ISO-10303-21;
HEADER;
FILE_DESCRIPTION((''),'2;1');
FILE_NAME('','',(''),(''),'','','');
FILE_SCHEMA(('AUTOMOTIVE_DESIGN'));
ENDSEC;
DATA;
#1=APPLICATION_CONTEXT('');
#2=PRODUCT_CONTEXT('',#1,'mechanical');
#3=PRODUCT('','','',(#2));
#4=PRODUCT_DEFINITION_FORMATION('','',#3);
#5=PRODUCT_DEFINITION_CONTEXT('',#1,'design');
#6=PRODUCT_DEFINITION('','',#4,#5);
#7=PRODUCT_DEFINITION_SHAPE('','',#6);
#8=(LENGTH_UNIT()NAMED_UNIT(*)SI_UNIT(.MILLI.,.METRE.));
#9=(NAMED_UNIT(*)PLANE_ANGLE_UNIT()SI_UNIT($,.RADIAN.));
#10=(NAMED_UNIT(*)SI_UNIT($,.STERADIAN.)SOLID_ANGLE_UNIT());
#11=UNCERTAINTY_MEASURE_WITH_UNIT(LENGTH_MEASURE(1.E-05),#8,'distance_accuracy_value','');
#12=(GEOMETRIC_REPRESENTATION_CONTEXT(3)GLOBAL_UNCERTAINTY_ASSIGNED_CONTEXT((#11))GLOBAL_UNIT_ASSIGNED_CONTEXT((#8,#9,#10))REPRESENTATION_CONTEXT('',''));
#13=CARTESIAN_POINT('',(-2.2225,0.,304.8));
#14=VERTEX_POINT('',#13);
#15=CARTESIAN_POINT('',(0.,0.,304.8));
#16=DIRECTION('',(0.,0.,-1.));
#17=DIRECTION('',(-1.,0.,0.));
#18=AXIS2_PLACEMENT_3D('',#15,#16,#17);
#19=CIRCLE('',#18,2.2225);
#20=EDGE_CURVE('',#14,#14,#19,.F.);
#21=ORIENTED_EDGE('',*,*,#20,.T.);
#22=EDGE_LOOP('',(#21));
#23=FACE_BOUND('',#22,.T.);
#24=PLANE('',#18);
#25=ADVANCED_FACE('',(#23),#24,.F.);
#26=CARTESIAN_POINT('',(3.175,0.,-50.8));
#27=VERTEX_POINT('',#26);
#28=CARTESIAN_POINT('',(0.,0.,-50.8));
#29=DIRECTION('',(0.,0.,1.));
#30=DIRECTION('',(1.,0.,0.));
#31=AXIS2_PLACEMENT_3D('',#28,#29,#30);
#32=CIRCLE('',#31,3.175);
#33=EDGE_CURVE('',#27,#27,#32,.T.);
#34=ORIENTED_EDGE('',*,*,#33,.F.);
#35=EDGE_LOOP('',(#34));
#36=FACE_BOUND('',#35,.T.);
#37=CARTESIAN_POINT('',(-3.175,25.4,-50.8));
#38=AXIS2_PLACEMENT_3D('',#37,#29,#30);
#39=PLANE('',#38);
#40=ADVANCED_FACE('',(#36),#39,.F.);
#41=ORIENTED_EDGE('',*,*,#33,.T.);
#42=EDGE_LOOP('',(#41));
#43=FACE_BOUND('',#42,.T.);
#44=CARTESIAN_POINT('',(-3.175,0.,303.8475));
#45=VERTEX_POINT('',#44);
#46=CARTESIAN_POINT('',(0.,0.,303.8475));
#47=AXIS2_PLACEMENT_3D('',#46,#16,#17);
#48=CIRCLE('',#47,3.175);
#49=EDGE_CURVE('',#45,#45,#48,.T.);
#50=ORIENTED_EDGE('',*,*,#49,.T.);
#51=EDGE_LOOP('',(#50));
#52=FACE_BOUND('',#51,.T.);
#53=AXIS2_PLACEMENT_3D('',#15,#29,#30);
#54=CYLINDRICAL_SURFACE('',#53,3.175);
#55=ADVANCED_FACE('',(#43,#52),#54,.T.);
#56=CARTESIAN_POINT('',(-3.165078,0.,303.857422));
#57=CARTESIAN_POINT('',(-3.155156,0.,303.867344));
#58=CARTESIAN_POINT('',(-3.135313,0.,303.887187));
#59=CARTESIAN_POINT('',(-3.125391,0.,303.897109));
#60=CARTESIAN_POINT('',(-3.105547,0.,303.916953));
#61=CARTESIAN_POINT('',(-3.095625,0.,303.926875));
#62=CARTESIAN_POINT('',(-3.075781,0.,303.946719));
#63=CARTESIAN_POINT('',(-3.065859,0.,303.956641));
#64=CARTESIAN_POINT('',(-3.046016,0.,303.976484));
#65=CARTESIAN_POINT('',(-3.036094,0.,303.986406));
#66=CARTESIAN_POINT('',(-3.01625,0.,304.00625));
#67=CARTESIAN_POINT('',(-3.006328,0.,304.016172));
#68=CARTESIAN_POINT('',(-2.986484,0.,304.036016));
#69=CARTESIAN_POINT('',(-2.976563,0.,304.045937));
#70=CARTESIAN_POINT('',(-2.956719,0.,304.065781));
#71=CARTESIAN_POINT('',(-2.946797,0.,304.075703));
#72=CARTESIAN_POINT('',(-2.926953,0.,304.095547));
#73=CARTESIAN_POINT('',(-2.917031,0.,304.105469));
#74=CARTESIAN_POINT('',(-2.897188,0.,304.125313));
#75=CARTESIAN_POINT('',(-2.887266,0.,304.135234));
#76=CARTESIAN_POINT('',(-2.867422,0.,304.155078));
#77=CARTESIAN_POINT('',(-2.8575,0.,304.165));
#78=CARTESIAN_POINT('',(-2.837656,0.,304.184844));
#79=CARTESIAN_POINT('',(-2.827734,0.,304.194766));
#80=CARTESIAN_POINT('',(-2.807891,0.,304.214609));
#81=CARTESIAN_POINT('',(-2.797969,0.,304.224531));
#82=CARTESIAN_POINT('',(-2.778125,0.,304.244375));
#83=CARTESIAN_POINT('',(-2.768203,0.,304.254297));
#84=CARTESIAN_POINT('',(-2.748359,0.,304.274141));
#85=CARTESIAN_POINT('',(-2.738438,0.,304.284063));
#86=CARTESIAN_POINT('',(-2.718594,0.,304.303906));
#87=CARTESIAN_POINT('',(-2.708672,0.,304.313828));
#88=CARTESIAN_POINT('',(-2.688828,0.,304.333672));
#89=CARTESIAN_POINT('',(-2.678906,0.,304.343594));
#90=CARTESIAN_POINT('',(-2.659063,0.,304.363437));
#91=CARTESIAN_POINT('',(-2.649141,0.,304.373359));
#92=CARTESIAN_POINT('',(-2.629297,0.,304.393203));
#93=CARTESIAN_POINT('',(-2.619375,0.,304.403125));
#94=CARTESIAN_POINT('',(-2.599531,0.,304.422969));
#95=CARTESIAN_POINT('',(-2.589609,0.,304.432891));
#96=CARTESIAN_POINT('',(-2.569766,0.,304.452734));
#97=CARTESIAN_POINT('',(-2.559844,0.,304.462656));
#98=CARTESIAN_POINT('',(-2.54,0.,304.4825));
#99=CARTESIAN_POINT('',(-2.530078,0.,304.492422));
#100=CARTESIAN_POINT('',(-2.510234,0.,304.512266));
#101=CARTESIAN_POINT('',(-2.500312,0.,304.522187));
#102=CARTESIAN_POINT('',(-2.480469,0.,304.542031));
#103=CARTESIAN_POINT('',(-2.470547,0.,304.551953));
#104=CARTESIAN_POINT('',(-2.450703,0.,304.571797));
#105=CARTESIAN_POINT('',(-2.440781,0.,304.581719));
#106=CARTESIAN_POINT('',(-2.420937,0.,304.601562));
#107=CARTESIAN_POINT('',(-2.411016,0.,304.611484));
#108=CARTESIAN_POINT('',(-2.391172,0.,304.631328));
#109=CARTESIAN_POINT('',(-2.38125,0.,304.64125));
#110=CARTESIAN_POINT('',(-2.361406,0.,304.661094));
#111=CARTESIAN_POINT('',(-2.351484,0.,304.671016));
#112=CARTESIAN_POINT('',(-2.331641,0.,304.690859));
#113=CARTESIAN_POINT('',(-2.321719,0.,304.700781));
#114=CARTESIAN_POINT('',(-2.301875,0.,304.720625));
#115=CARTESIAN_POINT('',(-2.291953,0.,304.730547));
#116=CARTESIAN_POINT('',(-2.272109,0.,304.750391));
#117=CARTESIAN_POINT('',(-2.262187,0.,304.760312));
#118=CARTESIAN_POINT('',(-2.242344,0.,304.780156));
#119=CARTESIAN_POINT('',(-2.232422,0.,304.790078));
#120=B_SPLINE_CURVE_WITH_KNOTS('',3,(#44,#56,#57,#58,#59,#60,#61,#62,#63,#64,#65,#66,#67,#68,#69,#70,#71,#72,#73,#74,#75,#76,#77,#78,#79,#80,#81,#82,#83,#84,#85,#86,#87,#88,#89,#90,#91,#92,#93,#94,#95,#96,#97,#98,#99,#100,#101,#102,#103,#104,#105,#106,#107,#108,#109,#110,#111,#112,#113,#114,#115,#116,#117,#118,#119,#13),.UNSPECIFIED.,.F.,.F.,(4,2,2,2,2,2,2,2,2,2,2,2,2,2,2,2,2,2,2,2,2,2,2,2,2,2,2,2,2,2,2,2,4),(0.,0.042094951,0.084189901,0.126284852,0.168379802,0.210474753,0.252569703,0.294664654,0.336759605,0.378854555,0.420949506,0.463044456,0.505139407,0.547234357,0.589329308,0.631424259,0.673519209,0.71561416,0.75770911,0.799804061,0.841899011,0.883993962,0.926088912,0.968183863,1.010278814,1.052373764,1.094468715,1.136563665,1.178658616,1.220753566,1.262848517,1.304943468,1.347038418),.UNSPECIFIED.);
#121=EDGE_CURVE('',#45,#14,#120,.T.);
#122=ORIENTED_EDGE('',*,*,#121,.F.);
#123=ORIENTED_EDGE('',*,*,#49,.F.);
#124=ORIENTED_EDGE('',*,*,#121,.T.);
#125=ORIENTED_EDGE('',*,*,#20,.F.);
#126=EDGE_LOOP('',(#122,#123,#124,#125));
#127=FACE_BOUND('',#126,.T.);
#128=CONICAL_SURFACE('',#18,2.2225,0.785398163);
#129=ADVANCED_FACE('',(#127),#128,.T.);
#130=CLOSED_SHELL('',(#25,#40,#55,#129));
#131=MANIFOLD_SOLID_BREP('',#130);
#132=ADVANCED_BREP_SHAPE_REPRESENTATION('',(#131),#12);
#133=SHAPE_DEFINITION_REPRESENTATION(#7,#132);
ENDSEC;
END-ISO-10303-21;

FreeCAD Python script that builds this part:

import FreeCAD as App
import Part
import Sketcher
from FreeCAD import Vector
Q = App.Units.Quantity


def edges_at(feature, points):
    """Names of the edges that pass closest to the given points."""
    edges = feature.Shape.Edges
    near = lambda p: min(range(len(edges)), key=lambda i: edges[i].distToShape(Part.Vertex(*p))[0])
    return sorted({f"Edge{near(p) + 1}" for p in points})


def add_polygon(sketch, points):
    """Adds a closed chain of lines whose ends are joined by coincident constraints."""
    first, n = sketch.GeometryCount, len(points)
    for a, b in zip(points, points[1:] + points[:1]):
        sketch.addGeometry(Part.LineSegment(App.Vector(*a, 0), App.Vector(*b, 0)), False)
    for i in range(n):
        sketch.addConstraint(Sketcher.Constraint("Coincident", first + i, 2, first + (i + 1) % n, 1))

doc = App.newDocument("Part")
body = doc.addObject("PartDesign::Body", "Body")

# Sketch on YZ plane
sketch1 = doc.addObject("Sketcher::SketchObject", "Sketch")
body.addObject(sketch1)
sketch1.AttachmentSupport = (doc.YZ_Plane, [""])
sketch1.MapMode = "FlatFace"
add_polygon(sketch1, [(3.2, 304.8), (0, 304.8), (0, -304.8), (3.2, -304.8)])  # lines 0-3
sketch1.addConstraint(Sketcher.Constraint("Horizontal", 0))
sketch1.addConstraint(Sketcher.Constraint("Vertical", 1))
sketch1.addConstraint(Sketcher.Constraint("Horizontal", 2))
sketch1.addConstraint(Sketcher.Constraint("Vertical", 3))
sketch1.addConstraint(Sketcher.Constraint("Symmetric", 0, 2, 1, 2, -1, 1))
sketch1.addConstraint(Sketcher.Constraint("DistanceY", 1, 2, 1, 1, Q("24 in")))
sketch1.addConstraint(Sketcher.Constraint("DistanceX", 0, 2, 0, 1, Q("0.125 in")))
revolution = doc.addObject("PartDesign::Revolution", "Revolution")
body.addObject(revolution)
revolution.Profile = sketch1
revolution.ReferenceAxis = (sketch1, ["V_Axis"])
revolution.Angle = 360
doc.recompute()

chamfer = doc.addObject("PartDesign::Chamfer", "Chamfer")
body.addObject(chamfer)
chamfer.Base = (revolution, edges_at(revolution, [(-3.175, 0, -304.8), (-3.175, 0, 304.8)]))
chamfer.Size = Q("0.0375 in")

# Sketch on YZ plane
sketch2 = doc.addObject("Sketcher::SketchObject", "Sketch001")
body.addObject(sketch2)
sketch2.AttachmentSupport = (doc.YZ_Plane, [""])
sketch2.MapMode = "FlatFace"
add_polygon(sketch2, [(25, -51), (-25, -51), (-25, -305), (25, -305)])  # lines 0-3
sketch2.addConstraint(Sketcher.Constraint("Horizontal", 0))
sketch2.addConstraint(Sketcher.Constraint("Vertical", 1))
sketch2.addConstraint(Sketcher.Constraint("Horizontal", 2))
sketch2.addConstraint(Sketcher.Constraint("Vertical", 3))
sketch2.addConstraint(Sketcher.Constraint("DistanceX", 0, 2, 0, 1, Q("2 in")))
sketch2.addConstraint(Sketcher.Constraint("DistanceY", 1, 2, 1, 1, Q("10 in")))
sketch2.addConstraint(Sketcher.Constraint("DistanceX", 0, 2, -1, 1, Q("1 in")))
sketch2.addConstraint(Sketcher.Constraint("DistanceY", 0, 2, -1, 1, Q("2 in")))
pocket1 = doc.addObject("PartDesign::Pocket", "Pocket")
body.addObject(pocket1)
pocket1.Profile = sketch2
pocket1.Type = "ThroughAll"
pocket1.Midplane = True

doc.recompute()
